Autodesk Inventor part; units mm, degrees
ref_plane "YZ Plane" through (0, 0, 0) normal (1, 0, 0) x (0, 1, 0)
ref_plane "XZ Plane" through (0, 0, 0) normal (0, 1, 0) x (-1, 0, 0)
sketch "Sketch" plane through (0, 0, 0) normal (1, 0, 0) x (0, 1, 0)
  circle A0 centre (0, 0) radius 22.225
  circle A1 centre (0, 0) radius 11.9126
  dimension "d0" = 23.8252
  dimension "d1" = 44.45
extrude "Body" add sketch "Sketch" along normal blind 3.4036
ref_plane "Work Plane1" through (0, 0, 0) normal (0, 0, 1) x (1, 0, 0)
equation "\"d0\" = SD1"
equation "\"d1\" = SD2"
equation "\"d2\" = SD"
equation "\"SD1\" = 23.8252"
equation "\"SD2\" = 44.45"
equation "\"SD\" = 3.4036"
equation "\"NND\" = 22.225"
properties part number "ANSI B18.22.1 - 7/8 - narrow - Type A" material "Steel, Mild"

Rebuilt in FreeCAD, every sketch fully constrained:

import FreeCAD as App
import Part
import Sketcher
from FreeCAD import Vector
Q = App.Units.Quantity

doc = App.newDocument("Part")
body = doc.addObject("PartDesign::Body", "Body")

sketch1 = body.newObject("Sketcher::SketchObject", "Sketch")
sketch1.AttachmentSupport = (doc.getObject("YZ_Plane"), [""])
sketch1.MapMode = "FlatFace"
sketch1.addGeometry(Part.Circle(Vector(0, 0, 0), Vector(0, 0, 1), 22), False)
sketch1.addGeometry(Part.Circle(Vector(0, 0, 0), Vector(0, 0, 1), 12), False)
sketch1.addConstraint(Sketcher.Constraint("Coincident", 0, 3, -1, 1))
sketch1.addConstraint(Sketcher.Constraint("Coincident", 1, 3, -1, 1))
sketch1.addConstraint(Sketcher.Constraint("Diameter", 0, Q("1.75 in")))
sketch1.addConstraint(Sketcher.Constraint("Diameter", 1, Q("0.938 in")))
pad1 = body.newObject("PartDesign::Pad", "Pad")
pad1.Profile = sketch1
pad1.Length = Q("0.134 in")

doc.recompute()
